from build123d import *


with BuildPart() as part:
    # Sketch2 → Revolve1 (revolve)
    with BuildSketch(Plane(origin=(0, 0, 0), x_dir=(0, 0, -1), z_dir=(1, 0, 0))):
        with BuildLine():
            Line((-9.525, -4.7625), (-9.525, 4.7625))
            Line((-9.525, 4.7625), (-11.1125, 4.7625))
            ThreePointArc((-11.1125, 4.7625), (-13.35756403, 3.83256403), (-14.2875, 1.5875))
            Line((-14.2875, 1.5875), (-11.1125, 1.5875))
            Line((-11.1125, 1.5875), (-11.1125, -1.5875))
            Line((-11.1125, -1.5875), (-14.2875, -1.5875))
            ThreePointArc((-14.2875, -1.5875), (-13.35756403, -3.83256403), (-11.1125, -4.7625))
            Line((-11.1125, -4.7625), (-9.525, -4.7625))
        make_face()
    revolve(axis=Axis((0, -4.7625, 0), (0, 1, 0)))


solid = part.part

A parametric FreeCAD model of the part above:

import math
import FreeCAD as App
import Part
import Sketcher
from FreeCAD import Vector
Q = App.Units.Quantity

doc = App.newDocument("Part")
body = doc.addObject("PartDesign::Body", "Body")

# Sketch on YZ plane
sketch1 = doc.addObject("Sketcher::SketchObject", "Sketch")
body.addObject(sketch1)
sketch1.AttachmentSupport = (doc.YZ_Plane, [""])
sketch1.MapMode = "FlatFace"
sketch1.addGeometry([
    Part.LineSegment(Vector(-4.8, 9.5, 0), Vector(4.8, 9.5, 0)),  # 0
    Part.LineSegment(Vector(4.8, 9.5, 0), Vector(4.8, 11.1, 0)),  # 1
    Part.ArcOfCircle(Part.Circle(Vector(1.6, 11.1, 0), Vector(0, 0, 1), 3.2), math.radians(0), math.radians(90)),  # 2
    Part.LineSegment(Vector(1.6, 14.3, 0), Vector(1.6, 11.1, 0)),  # 3
    Part.LineSegment(Vector(1.6, 11.1, 0), Vector(-1.6, 11.1, 0)),  # 4
    Part.LineSegment(Vector(-1.6, 11.1, 0), Vector(-1.6, 14.3, 0)),  # 5
    Part.ArcOfCircle(Part.Circle(Vector(-1.6, 11.1, 0), Vector(0, 0, 1), 3.2), math.radians(90), math.radians(180)),  # 6
    Part.LineSegment(Vector(-4.8, 11.1, 0), Vector(-4.8, 9.5, 0)),  # 7
], False)
sketch1.addConstraint([
    Sketcher.Constraint("Coincident", 0, 2, 1, 1),
    Sketcher.Constraint("Tangent", 1, 2, 2, 1),
    Sketcher.Constraint("Coincident", 2, 2, 3, 1),
    Sketcher.Constraint("Coincident", 3, 2, 4, 1),
    Sketcher.Constraint("Coincident", 4, 2, 5, 1),
    Sketcher.Constraint("Coincident", 5, 2, 6, 1),
    Sketcher.Constraint("Tangent", 6, 2, 7, 1),
    Sketcher.Constraint("Coincident", 7, 2, 0, 1),
    Sketcher.Constraint("Horizontal", 0),
    Sketcher.Constraint("Vertical", 1),
    Sketcher.Constraint("Vertical", 3),
    Sketcher.Constraint("Horizontal", 4),
    Sketcher.Constraint("Vertical", 5),
    Sketcher.Constraint("Vertical", 7),
    Sketcher.Constraint("Coincident", 3, 2, 2, 3),
    Sketcher.Constraint("Coincident", 4, 2, 6, 3),
    Sketcher.Constraint("Equal", 2, 6),
    Sketcher.Constraint("Equal", 4, 3),
    Sketcher.Constraint("Radius", 2, Q("0.125 in")),
    Sketcher.Constraint("DistanceY", 1, 1, 1, 2, Q("0.0625 in")),
    Sketcher.Constraint("DistanceX", -1, 1, 2, 3, Q("0.0625 in")),
    Sketcher.Constraint("DistanceY", -1, 1, 2, 3, Q("0.4375 in")),
])
revolution = doc.addObject("PartDesign::Revolution", "Revolution")
body.addObject(revolution)
revolution.Profile = sketch1
revolution.ReferenceAxis = (sketch1, ["H_Axis"])
revolution.Angle = 360

doc.recompute()
